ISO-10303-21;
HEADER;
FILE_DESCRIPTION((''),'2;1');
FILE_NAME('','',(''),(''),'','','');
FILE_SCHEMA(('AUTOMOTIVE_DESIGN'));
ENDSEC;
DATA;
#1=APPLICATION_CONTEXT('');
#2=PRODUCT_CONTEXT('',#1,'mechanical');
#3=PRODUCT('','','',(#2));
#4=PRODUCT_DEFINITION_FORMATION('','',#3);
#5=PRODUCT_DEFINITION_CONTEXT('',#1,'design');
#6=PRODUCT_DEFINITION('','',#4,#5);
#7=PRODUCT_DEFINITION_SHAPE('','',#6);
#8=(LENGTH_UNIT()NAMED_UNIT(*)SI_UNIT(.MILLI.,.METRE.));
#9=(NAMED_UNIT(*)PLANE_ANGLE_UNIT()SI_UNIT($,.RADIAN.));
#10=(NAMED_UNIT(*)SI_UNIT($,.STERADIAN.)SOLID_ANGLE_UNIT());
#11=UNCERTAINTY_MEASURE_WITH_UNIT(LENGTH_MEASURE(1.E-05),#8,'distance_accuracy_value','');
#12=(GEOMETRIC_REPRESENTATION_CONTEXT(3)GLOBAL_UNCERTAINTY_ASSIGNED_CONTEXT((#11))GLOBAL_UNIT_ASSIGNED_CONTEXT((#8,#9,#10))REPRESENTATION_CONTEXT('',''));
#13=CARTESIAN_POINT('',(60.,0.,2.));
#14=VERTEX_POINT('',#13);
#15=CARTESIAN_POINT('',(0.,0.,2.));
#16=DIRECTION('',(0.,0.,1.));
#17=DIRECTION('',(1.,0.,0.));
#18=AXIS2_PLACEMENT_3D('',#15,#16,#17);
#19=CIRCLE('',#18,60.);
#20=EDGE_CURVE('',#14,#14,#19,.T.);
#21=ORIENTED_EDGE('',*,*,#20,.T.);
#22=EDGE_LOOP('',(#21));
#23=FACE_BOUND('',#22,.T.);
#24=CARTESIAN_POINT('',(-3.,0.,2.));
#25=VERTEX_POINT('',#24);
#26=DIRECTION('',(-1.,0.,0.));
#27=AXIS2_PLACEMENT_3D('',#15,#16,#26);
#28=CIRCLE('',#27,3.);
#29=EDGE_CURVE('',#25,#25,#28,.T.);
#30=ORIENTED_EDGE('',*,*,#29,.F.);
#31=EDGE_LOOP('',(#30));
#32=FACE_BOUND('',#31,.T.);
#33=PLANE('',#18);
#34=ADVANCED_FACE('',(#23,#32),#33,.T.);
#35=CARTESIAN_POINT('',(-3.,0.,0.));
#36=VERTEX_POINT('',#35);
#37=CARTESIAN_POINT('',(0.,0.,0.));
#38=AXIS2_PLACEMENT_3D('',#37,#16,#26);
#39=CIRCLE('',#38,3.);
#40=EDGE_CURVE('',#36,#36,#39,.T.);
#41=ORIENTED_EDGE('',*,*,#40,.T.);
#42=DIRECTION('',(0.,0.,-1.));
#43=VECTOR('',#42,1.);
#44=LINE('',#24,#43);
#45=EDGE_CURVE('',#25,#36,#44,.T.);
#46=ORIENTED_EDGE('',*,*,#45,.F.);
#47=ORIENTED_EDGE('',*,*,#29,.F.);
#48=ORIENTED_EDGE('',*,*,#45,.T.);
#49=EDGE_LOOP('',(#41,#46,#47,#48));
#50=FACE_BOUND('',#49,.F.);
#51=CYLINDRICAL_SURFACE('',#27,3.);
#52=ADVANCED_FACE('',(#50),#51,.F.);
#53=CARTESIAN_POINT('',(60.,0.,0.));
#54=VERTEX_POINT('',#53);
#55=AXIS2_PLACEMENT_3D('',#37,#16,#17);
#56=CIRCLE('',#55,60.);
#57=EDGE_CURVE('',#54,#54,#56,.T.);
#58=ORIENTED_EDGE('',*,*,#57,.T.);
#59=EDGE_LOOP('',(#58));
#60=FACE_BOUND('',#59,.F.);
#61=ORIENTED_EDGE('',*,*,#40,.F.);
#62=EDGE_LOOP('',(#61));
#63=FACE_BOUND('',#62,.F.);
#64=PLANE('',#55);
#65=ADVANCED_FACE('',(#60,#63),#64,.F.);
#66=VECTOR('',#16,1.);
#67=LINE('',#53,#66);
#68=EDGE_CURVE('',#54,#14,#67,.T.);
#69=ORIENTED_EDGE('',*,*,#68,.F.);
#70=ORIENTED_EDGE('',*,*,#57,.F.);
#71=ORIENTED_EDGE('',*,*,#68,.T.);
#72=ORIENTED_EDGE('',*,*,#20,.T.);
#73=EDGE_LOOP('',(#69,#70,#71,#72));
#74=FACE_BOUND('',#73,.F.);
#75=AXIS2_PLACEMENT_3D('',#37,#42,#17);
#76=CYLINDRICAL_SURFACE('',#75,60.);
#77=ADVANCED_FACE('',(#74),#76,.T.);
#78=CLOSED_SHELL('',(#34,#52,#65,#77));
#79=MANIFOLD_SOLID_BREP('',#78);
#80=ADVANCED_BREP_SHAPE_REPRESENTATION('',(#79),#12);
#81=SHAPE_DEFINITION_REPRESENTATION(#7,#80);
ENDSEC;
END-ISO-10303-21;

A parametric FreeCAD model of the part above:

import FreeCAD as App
import Part
import Sketcher

V = App.Vector

doc = App.newDocument("Part")
body = doc.addObject("PartDesign::Body", "Body")

sketch1 = body.newObject("Sketcher::SketchObject", "Sketch")
sketch1.AttachmentSupport = (doc.getObject("XY_Plane"), [""])
sketch1.MapMode = "FlatFace"
sketch1.addGeometry(Part.Circle(V(0, 0, 0), V(0, 0, 1), 60), False)
sketch1.addConstraint([
    Sketcher.Constraint("Coincident", 0, 3, -1, 1),
    Sketcher.Constraint("Diameter", 0, 120.0),
])
pad1 = body.newObject("PartDesign::Pad", "Pad")
pad1.Profile = sketch1
pad1.Length = 2

sketch2 = body.newObject("Sketcher::SketchObject", "Sketch001")
sketch2.AttachmentSupport = (doc.getObject("XY_Plane"), [""])
sketch2.MapMode = "FlatFace"
sketch2.AttachmentOffset = App.Placement(V(0, 0, 2), App.Rotation())
sketch2.addGeometry(Part.Circle(V(0, 0, 0), V(0, 0, 1), 3), False)
sketch2.addConstraint([
    Sketcher.Constraint("Coincident", 0, 3, -1, 1),
    Sketcher.Constraint("Diameter", 0, 6.0),
])
pocket1 = body.newObject("PartDesign::Pocket", "Pocket")
pocket1.Profile = sketch2
pocket1.Length = 2

doc.recompute()
